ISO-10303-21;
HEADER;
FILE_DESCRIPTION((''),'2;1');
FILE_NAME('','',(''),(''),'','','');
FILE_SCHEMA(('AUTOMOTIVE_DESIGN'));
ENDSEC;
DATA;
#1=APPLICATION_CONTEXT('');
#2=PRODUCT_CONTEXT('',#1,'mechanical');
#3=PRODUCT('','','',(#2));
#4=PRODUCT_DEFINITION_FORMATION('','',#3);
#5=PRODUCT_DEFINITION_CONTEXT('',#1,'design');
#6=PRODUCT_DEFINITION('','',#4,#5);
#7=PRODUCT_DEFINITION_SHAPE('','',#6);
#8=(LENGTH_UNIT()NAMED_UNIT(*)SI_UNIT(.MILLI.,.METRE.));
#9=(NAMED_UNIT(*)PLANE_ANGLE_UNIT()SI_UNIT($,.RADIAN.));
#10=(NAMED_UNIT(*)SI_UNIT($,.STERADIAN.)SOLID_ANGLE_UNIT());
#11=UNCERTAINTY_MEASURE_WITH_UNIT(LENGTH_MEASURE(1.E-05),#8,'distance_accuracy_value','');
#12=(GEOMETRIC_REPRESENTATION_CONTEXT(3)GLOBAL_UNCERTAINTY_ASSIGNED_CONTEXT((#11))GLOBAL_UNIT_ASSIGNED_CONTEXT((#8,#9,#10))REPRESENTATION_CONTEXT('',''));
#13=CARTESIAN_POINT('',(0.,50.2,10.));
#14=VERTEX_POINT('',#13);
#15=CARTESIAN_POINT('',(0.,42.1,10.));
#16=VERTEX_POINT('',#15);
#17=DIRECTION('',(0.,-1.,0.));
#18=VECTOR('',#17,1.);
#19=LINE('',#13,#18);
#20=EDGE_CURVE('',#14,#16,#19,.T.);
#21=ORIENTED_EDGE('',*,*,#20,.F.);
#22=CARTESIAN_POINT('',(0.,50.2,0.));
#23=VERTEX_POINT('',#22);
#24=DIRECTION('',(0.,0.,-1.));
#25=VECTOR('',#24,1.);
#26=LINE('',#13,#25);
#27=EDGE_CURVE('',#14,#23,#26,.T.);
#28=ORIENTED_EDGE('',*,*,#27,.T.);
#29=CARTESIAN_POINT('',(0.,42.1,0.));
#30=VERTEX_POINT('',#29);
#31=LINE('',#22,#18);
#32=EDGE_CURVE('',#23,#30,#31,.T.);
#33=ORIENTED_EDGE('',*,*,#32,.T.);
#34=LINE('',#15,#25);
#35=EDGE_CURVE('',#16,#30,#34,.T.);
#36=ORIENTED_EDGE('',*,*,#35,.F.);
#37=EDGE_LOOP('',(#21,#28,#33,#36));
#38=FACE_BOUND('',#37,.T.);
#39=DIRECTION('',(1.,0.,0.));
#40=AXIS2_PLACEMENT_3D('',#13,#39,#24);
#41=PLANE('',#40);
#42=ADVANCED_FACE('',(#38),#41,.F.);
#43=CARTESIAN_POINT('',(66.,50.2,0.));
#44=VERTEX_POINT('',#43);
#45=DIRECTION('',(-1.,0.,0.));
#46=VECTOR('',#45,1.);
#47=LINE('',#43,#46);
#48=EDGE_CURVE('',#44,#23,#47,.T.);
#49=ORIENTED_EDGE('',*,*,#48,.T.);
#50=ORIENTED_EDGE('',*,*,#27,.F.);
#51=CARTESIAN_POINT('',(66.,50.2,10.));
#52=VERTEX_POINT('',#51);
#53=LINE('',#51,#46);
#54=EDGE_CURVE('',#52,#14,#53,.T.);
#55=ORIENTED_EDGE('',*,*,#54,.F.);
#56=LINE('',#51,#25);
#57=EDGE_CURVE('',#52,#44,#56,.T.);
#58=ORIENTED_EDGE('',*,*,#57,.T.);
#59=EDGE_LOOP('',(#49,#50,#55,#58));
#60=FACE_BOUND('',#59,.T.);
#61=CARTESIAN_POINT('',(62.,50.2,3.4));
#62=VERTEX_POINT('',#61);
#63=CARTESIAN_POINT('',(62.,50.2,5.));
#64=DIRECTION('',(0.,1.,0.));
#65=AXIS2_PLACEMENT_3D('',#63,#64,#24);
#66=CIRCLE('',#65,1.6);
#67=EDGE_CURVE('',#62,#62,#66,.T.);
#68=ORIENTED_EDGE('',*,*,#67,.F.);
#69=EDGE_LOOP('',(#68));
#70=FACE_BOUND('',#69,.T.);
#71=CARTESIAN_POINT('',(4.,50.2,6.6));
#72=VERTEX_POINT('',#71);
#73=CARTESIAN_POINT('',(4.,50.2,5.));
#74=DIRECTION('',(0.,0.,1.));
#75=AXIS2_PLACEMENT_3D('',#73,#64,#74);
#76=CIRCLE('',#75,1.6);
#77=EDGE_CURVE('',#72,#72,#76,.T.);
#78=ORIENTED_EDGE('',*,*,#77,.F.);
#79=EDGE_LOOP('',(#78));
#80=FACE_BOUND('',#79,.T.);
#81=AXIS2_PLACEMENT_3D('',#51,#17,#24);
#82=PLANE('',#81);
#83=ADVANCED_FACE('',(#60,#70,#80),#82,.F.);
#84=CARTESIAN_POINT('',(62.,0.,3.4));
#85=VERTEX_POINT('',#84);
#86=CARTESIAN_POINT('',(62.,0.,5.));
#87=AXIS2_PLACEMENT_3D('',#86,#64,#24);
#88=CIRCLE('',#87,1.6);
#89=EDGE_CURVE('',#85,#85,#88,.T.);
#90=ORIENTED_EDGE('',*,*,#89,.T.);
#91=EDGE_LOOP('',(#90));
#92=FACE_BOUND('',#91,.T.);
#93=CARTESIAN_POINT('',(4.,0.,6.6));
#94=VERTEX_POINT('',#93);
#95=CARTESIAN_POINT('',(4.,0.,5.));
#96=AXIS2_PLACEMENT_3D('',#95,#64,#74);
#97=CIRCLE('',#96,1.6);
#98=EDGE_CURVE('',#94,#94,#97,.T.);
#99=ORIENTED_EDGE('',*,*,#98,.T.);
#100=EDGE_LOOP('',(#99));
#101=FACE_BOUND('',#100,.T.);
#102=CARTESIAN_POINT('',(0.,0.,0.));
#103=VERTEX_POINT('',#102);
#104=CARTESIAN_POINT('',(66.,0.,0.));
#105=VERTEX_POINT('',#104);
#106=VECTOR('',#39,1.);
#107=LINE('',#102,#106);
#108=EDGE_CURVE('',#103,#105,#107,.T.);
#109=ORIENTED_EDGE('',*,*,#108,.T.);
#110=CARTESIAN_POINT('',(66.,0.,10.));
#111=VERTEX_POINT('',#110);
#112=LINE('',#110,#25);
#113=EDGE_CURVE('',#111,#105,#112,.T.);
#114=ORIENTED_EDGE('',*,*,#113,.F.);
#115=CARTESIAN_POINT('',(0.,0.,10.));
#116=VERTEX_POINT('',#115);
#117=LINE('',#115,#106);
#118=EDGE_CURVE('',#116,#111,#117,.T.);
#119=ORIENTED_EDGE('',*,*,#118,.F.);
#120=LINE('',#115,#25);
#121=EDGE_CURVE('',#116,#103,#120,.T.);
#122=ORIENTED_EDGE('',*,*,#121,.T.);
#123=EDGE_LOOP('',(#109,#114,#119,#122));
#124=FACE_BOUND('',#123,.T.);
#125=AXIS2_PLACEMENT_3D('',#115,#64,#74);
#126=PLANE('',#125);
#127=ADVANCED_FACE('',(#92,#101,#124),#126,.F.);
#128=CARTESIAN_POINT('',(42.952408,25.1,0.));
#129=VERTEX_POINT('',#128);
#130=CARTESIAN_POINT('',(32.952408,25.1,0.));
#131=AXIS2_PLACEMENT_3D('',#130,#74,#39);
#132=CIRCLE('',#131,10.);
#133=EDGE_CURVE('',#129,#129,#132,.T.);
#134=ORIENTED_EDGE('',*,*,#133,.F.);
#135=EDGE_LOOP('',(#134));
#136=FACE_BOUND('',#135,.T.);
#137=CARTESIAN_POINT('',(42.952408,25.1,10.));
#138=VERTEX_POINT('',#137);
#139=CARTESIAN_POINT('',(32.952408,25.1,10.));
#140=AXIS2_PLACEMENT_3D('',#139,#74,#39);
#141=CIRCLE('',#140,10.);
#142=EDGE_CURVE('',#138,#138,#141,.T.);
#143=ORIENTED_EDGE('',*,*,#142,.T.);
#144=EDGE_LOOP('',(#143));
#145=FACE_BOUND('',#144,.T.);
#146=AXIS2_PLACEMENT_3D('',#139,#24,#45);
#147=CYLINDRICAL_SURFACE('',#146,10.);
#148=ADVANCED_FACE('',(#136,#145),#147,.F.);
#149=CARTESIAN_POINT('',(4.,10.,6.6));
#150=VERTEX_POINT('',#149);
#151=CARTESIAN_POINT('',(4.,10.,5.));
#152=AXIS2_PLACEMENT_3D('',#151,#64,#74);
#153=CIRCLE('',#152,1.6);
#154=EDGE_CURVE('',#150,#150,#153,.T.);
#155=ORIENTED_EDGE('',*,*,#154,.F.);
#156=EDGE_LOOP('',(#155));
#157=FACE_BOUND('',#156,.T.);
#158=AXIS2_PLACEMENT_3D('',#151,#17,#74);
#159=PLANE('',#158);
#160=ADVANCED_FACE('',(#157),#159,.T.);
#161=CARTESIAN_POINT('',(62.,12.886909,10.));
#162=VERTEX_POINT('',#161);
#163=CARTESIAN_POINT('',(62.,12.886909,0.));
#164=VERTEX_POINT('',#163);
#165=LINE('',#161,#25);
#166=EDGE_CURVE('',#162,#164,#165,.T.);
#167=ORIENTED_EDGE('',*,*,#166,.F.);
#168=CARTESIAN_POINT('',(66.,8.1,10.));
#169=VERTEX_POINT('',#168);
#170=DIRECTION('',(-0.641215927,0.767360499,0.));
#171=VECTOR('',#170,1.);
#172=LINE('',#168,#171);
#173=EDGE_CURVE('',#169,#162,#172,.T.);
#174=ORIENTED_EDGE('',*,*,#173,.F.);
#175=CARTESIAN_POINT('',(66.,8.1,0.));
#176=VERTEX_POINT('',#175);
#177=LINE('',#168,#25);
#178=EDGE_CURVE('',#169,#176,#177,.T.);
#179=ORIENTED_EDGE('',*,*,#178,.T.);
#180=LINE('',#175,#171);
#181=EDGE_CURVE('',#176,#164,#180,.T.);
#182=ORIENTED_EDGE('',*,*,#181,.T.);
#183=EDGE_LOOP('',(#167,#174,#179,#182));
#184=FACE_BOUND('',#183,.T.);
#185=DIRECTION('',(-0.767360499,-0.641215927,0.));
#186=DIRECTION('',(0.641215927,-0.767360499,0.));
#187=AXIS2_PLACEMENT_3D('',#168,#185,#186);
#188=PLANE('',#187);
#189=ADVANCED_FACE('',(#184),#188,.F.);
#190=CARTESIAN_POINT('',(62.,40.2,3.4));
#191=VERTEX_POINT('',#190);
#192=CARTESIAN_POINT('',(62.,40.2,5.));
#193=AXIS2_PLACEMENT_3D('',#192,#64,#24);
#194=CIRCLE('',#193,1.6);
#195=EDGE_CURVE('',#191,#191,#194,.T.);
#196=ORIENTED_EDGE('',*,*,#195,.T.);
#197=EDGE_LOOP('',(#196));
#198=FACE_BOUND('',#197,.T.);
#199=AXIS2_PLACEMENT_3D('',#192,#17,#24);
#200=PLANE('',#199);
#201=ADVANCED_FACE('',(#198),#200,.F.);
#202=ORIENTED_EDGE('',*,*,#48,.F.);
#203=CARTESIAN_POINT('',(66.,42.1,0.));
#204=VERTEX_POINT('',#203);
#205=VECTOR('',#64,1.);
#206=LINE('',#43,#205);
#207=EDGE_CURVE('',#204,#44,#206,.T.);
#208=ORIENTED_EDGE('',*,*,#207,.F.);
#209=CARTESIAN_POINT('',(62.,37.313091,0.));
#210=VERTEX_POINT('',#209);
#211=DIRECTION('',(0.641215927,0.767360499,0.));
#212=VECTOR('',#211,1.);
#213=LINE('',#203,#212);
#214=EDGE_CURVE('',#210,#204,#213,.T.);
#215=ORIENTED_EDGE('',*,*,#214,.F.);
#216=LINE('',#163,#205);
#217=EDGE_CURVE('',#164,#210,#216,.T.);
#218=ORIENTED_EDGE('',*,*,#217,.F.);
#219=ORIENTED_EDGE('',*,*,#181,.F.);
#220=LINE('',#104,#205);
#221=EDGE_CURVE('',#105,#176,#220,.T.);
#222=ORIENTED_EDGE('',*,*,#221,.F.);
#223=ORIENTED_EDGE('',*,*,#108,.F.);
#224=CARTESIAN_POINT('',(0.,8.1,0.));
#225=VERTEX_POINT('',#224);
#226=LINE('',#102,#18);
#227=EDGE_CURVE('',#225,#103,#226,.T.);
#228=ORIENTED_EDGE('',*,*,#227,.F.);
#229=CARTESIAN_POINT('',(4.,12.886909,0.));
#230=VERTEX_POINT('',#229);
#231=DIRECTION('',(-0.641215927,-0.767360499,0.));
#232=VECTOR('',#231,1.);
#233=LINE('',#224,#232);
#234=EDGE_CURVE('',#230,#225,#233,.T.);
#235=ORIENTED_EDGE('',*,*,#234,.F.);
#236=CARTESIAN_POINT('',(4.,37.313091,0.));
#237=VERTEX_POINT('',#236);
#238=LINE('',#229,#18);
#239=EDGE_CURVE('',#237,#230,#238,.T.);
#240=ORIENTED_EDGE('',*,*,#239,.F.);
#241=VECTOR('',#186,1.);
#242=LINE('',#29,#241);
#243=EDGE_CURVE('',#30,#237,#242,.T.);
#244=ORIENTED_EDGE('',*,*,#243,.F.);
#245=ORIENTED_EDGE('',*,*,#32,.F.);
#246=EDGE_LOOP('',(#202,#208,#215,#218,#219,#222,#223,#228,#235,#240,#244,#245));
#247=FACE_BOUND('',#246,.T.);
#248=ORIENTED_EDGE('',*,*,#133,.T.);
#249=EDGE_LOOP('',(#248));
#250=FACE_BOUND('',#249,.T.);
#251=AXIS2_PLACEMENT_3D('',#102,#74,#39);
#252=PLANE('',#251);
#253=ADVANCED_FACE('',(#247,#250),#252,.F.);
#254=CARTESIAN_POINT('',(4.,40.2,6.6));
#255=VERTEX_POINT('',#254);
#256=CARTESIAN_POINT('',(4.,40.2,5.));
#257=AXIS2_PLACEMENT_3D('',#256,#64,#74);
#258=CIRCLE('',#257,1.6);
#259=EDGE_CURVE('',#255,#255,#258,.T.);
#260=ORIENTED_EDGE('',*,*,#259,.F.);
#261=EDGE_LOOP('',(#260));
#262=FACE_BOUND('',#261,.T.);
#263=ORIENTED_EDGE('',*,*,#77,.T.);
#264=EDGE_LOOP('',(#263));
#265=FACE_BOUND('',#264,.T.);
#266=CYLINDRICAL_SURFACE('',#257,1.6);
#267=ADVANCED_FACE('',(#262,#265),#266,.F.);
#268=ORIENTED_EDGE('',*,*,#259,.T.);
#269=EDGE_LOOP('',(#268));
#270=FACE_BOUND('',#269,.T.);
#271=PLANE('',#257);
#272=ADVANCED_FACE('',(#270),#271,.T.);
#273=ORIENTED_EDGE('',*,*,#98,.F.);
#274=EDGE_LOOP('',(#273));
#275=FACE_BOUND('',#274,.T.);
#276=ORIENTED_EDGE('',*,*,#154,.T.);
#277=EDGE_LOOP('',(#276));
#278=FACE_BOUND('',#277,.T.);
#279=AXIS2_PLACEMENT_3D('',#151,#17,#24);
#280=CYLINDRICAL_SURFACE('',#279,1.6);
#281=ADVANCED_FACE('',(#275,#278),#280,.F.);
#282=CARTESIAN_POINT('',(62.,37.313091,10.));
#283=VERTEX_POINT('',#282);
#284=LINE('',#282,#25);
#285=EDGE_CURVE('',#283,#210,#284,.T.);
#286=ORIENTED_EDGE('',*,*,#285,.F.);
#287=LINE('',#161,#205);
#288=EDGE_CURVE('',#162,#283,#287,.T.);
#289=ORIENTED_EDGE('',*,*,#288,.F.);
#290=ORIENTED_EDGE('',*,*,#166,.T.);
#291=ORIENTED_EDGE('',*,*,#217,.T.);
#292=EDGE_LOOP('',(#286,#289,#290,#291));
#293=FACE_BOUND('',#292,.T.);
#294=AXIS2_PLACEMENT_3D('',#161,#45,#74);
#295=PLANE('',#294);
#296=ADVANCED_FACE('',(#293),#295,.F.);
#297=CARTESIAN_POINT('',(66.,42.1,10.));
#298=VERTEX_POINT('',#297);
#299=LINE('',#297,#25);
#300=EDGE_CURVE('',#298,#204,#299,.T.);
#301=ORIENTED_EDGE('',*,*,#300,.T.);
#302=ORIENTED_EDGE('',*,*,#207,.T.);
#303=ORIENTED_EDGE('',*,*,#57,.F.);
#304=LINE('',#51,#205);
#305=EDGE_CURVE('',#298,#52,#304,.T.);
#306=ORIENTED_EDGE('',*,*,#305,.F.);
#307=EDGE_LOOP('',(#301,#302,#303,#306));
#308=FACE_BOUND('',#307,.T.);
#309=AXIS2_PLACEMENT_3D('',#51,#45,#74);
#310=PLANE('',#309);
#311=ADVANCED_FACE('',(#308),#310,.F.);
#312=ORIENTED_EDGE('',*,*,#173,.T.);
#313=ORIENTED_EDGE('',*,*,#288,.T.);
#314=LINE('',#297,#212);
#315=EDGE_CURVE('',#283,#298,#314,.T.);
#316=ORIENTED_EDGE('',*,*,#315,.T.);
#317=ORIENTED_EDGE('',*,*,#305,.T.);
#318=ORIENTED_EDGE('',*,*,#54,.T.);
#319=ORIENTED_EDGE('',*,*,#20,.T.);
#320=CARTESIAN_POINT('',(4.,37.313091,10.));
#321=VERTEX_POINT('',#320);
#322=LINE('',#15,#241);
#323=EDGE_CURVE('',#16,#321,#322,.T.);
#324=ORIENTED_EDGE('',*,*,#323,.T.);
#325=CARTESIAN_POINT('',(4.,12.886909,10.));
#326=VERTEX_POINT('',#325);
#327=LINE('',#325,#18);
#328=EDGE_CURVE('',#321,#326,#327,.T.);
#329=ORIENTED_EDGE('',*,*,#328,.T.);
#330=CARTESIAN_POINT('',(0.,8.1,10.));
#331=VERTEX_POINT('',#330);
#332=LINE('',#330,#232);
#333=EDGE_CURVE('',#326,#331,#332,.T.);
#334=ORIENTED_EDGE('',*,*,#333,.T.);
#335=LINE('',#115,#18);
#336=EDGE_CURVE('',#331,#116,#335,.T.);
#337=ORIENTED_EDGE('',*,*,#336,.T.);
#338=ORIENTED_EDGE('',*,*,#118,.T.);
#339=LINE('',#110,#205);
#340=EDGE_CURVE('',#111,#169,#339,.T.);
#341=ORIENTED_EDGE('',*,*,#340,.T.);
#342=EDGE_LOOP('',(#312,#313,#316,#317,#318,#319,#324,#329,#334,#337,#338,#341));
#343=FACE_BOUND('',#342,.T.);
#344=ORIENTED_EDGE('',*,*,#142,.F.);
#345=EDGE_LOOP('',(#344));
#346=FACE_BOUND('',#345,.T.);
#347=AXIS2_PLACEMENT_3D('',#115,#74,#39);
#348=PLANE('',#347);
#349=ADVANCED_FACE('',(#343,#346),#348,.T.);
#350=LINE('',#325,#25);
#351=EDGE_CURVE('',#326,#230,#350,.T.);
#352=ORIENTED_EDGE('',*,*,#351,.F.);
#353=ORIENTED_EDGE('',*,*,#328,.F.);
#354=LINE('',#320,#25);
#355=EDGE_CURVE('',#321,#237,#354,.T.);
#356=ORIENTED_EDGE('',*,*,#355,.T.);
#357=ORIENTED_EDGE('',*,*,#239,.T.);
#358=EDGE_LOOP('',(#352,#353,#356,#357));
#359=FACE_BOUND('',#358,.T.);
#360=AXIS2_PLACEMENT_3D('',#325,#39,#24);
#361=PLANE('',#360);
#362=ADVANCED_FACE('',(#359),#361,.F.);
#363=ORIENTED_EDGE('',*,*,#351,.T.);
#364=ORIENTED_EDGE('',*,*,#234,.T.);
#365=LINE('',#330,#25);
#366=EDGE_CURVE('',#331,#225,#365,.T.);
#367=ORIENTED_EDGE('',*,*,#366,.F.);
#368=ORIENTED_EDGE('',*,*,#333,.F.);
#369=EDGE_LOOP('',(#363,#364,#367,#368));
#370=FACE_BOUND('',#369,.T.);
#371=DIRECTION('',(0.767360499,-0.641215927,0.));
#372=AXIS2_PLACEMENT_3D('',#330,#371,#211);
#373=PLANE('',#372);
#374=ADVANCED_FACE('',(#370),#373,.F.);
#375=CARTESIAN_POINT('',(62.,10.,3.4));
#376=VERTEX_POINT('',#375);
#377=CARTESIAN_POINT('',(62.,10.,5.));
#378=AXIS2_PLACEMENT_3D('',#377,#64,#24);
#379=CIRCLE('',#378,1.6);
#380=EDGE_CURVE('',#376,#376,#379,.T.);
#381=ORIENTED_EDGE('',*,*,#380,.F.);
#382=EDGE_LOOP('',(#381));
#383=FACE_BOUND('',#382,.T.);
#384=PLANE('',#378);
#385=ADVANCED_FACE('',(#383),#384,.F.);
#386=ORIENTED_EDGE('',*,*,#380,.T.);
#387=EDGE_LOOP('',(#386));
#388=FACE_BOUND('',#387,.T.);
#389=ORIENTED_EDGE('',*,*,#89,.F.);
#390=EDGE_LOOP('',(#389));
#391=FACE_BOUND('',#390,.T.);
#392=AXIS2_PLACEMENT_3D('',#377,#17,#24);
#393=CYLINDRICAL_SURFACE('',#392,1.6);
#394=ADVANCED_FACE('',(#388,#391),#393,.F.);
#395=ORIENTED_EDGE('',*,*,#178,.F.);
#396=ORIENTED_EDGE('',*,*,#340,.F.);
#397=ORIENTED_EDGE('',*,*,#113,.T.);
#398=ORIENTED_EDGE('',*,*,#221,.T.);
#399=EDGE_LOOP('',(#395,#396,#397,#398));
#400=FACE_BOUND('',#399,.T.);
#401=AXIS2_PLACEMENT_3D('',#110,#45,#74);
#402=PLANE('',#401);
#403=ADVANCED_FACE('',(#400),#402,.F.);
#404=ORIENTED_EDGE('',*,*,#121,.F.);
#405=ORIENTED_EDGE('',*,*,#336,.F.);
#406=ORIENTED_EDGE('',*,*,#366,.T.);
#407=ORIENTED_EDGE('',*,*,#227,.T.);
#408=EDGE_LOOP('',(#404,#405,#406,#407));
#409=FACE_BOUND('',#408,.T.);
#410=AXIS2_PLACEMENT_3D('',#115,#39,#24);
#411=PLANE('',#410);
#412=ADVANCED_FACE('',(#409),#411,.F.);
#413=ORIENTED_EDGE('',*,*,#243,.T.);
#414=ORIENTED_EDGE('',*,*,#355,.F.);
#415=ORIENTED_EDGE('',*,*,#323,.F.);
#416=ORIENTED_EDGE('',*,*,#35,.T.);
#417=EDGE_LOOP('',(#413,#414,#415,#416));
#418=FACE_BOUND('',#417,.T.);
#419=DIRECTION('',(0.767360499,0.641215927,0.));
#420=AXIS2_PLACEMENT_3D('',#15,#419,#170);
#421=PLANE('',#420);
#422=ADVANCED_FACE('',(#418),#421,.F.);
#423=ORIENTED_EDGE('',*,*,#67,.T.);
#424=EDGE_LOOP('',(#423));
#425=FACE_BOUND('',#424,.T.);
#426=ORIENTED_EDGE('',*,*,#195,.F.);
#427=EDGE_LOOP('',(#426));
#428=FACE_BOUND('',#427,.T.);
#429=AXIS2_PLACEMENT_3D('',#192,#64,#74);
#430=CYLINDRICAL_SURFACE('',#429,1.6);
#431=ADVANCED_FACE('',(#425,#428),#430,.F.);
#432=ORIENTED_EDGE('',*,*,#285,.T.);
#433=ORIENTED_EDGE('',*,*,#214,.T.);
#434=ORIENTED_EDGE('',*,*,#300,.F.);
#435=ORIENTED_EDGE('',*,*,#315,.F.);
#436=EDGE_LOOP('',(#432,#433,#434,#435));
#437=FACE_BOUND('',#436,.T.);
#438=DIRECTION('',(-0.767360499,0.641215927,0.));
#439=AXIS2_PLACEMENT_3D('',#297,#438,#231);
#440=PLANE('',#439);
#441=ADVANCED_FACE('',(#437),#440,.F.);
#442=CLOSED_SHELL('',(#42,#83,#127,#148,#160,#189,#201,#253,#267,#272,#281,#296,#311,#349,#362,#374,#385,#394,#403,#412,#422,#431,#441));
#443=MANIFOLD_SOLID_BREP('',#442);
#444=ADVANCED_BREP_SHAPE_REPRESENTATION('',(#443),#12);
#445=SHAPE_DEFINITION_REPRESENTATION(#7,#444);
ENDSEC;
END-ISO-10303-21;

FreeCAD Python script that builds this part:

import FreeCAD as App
import Part
import Sketcher

V = App.Vector


def add_polygon(sketch, points):
    """Adds a closed chain of lines whose ends are joined by coincident constraints."""
    first, n = sketch.GeometryCount, len(points)
    for a, b in zip(points, points[1:] + points[:1]):
        sketch.addGeometry(Part.LineSegment(App.Vector(*a, 0), App.Vector(*b, 0)), False)
    for i in range(n):
        sketch.addConstraint(Sketcher.Constraint("Coincident", first + i, 2, first + (i + 1) % n, 1))

doc = App.newDocument("Part")
body = doc.addObject("PartDesign::Body", "Body")

sketch1 = body.newObject("Sketcher::SketchObject", "Sketch")
sketch1.AttachmentSupport = (doc.getObject("XY_Plane"), [""])
sketch1.MapMode = "FlatFace"
add_polygon(sketch1, [(0, 0), (66, 0), (66, 8), (62, 13), (62, 37), (66, 42), (66, 50), (0, 50), (0, 42), (4, 37), (4, 13), (0, 8)])
sketch1.addGeometry(Part.Circle(V(33, 25, 0), V(0, 0, 1), 10), False)
sketch1.addConstraint([
    Sketcher.Constraint("Horizontal", 0),
    Sketcher.Constraint("Vertical", 1),
    Sketcher.Constraint("Vertical", 3),
    Sketcher.Constraint("Vertical", 5),
    Sketcher.Constraint("Horizontal", 6),
    Sketcher.Constraint("Vertical", 7),
    Sketcher.Constraint("Vertical", 9),
    Sketcher.Constraint("Vertical", 11),
    Sketcher.Constraint("Coincident", 11, 2, -1, 1),
    Sketcher.Constraint("PointOnObject", 6, 2, -2),
    Sketcher.Constraint("Parallel", 2, 8),
    Sketcher.Constraint("Parallel", 4, 10),
    Sketcher.Constraint("Horizontal", 4, 2, 7, 2),
    Sketcher.Constraint("Horizontal", 3, 2, 8, 2),
    Sketcher.Constraint("Horizontal", 2, 2, 9, 2),
    Sketcher.Constraint("Horizontal", 1, 2, 10, 2),
    Sketcher.Constraint("Vertical", 1, 2, 4, 2),
    Sketcher.Constraint("Equal", 1, 5),
    Sketcher.Constraint("Diameter", 12, 20.0),
    Sketcher.Constraint("DistanceX", 0, 1, 0, 2, 66.0),
    Sketcher.Constraint("DistanceY", 1, 1, 1, 2, 8.1),
    Sketcher.Constraint("DistanceX", -1, 1, 2, 2, 62.0),
    Sketcher.Constraint("DistanceY", 1, 2, 12, 3, 17.0),
    Sketcher.Constraint("DistanceY", 1, 2, 4, 2, 34.0),
    Sketcher.Constraint("Distance", 2, 6.238148),
    Sketcher.Constraint("DistanceX", -1, 1, 12, 3, 32.952408),
])
pad1 = body.newObject("PartDesign::Pad", "Pad")
pad1.Profile = sketch1
pad1.Length = 10

sketch2 = body.newObject("Sketcher::SketchObject", "Sketch001")
sketch2.AttachmentSupport = (doc.getObject("XZ_Plane"), [""])
sketch2.MapMode = "FlatFace"
sketch2.AttachmentOffset = App.Placement(V(0, 0, -50.2), App.Rotation())
sketch2.addGeometry([
    Part.Circle(V(4, 5, 0), V(0, 0, 1), 1.6),
    Part.Circle(V(62, 5, 0), V(0, 0, 1), 1.6),
], False)
sketch2.addConstraint([
    Sketcher.Constraint("Equal", 0, 1),
    Sketcher.Constraint("Horizontal", 0, 3, 1, 3),
    Sketcher.Constraint("Diameter", 0, 3.2),
    Sketcher.Constraint("DistanceX", -1, 1, 0, 3, 4.0),
    Sketcher.Constraint("DistanceY", -1, 1, 0, 3, 5.0),
    Sketcher.Constraint("DistanceX", -1, 1, 1, 3, 62.0),
])
pocket1 = body.newObject("PartDesign::Pocket", "Pocket")
pocket1.Profile = sketch2
pocket1.Length = 10
pocket1.Reversed = True
doc.recompute()

datumplane = body.newObject("PartDesign::Plane", "DatumPlane")
datumplane.AttachmentSupport = (doc.getObject("XZ_Plane"), [""])
datumplane.MapMode = "FlatFace"
datumplane.AttachmentOffset = App.Placement(V(0, 0, -25.1), App.Rotation())
mirrored = body.newObject("PartDesign::Mirrored", "Mirrored")
mirrored.Originals = [pocket1]
mirrored.MirrorPlane = (datumplane, [""])
body.Tip = mirrored

doc.recompute()
